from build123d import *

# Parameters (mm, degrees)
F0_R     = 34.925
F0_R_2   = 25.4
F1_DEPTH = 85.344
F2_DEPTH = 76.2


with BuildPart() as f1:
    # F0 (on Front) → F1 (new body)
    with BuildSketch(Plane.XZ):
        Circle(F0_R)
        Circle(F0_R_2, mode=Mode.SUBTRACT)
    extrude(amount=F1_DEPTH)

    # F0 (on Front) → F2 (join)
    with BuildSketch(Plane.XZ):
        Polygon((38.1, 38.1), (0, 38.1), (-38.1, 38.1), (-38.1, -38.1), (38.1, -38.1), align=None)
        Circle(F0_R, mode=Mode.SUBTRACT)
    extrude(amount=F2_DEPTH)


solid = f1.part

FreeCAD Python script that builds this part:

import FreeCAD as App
import Part
import Sketcher

V = App.Vector
Q = App.Units.Quantity


def add_polygon(sketch, points):
    """Adds a closed chain of lines whose ends are joined by coincident constraints."""
    first, n = sketch.GeometryCount, len(points)
    for a, b in zip(points, points[1:] + points[:1]):
        sketch.addGeometry(Part.LineSegment(App.Vector(*a, 0), App.Vector(*b, 0)), False)
    for i in range(n):
        sketch.addConstraint(Sketcher.Constraint("Coincident", first + i, 2, first + (i + 1) % n, 1))

doc = App.newDocument("Part")
body = doc.addObject("PartDesign::Body", "Body")

# Sketch on XZ plane
sketch1 = body.newObject("Sketcher::SketchObject", "Sketch")
sketch1.AttachmentSupport = (doc.getObject("XZ_Plane"), [""])
sketch1.MapMode = "FlatFace"
sketch1.addGeometry(Part.Circle(V(0, 0, 0), V(0, 0, 1), 35), False)
sketch1.addGeometry(Part.Circle(V(0, 0, 0), V(0, 0, 1), 25), False)
sketch1.addConstraint(Sketcher.Constraint("Coincident", 0, 3, -1, 1))
sketch1.addConstraint(Sketcher.Constraint("Coincident", 1, 3, -1, 1))
sketch1.addConstraint(Sketcher.Constraint("Diameter", 1, Q("2 in")))
sketch1.addConstraint(Sketcher.Constraint("Diameter", 0, Q("2.75 in")))
pad1 = body.newObject("PartDesign::Pad", "Pad")
pad1.Profile = sketch1
pad1.Length = Q("3.36 in")

# Sketch on XZ plane
sketch2 = body.newObject("Sketcher::SketchObject", "Sketch001")
sketch2.AttachmentSupport = (doc.getObject("XZ_Plane"), [""])
sketch2.MapMode = "FlatFace"
add_polygon(sketch2, [(38, 38), (-38, 38), (-38, -38), (38, -38)])  # lines 0-3
sketch2.addGeometry(Part.Circle(V(0, 0, 0), V(0, 0, 1), 35), False)  # 4
sketch2.addConstraint(Sketcher.Constraint("Horizontal", 0))
sketch2.addConstraint(Sketcher.Constraint("Vertical", 1))
sketch2.addConstraint(Sketcher.Constraint("Horizontal", 2))
sketch2.addConstraint(Sketcher.Constraint("Vertical", 3))
sketch2.addConstraint(Sketcher.Constraint("Coincident", 4, 3, -1, 1))
sketch2.addConstraint(Sketcher.Constraint("Symmetric", 0, 2, 2, 2, -1, 1))
sketch2.addConstraint(Sketcher.Constraint("Equal", 2, 1))
sketch2.addConstraint(Sketcher.Constraint("Diameter", 4, Q("2.75 in")))
sketch2.addConstraint(Sketcher.Constraint("DistanceX", 0, 2, 0, 1, Q("3 in")))
pad2 = body.newObject("PartDesign::Pad", "Pad001")
pad2.Profile = sketch2
pad2.Length = Q("3 in")

doc.recompute()
